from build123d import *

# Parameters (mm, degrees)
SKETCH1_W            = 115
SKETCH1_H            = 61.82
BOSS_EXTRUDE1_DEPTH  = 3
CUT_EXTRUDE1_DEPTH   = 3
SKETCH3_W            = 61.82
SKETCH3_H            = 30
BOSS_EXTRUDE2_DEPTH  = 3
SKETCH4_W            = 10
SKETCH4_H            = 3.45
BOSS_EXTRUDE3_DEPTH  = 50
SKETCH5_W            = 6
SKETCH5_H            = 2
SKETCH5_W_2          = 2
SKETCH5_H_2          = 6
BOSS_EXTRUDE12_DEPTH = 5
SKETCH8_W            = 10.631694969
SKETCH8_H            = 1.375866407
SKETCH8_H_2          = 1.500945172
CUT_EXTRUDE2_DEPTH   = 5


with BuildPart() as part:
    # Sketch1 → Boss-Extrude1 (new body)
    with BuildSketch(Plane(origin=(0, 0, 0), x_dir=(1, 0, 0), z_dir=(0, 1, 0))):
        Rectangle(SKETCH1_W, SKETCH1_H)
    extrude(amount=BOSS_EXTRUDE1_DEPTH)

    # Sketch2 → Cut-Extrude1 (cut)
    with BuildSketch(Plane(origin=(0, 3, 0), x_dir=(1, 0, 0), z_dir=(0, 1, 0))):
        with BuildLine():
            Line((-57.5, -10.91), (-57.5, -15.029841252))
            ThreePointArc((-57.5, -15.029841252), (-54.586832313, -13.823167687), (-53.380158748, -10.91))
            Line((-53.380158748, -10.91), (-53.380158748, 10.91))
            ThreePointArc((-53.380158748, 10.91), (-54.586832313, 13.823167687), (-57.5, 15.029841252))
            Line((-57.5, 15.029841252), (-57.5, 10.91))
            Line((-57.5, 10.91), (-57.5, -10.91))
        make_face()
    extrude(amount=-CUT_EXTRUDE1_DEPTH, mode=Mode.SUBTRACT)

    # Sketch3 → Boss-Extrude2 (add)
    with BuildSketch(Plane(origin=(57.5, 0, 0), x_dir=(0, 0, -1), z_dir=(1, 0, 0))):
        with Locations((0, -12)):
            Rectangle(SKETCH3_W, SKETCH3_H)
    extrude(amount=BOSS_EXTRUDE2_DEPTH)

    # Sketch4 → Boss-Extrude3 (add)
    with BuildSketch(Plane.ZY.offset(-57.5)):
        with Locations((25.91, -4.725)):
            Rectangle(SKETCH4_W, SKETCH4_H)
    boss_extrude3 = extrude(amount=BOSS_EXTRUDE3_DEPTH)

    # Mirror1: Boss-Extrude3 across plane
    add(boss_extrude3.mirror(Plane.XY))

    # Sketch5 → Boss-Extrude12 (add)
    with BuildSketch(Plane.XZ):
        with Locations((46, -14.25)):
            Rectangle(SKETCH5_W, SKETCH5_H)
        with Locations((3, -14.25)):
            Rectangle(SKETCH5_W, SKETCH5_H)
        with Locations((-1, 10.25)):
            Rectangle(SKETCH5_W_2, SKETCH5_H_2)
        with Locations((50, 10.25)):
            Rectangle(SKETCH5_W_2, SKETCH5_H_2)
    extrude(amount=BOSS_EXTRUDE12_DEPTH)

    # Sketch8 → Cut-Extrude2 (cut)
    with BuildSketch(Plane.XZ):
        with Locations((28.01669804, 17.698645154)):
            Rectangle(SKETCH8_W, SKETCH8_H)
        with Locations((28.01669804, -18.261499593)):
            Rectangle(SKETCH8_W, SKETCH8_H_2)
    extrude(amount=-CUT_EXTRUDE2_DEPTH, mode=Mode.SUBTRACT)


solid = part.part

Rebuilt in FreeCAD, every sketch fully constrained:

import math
import FreeCAD as App
import Part
import Sketcher

V = App.Vector
Q = App.Units.Quantity

doc = App.newDocument("Part")
body = doc.addObject("PartDesign::Body", "Body")

sketch1 = body.newObject("Sketcher::SketchObject", "Sketch")
sketch1.AttachmentSupport = (doc.getObject("XZ_Plane"), [""])
sketch1.MapMode = "FlatFace"
sketch1.addGeometry([
    Part.LineSegment(V(-57.5, -30.91, 0), V(-57.5, 30.91, 0)),
    Part.LineSegment(V(-57.5, 30.91, 0), V(57.5, 30.91, 0)),
    Part.LineSegment(V(57.5, 30.91, 0), V(57.5, -30.91, 0)),
    Part.LineSegment(V(57.5, -30.91, 0), V(-57.5, -30.91, 0)),
], False)
sketch1.addConstraint([
    Sketcher.Constraint("Coincident", 0, 2, 1, 1),
    Sketcher.Constraint("Coincident", 1, 2, 2, 1),
    Sketcher.Constraint("Coincident", 2, 2, 3, 1),
    Sketcher.Constraint("Coincident", 3, 2, 0, 1),
    Sketcher.Constraint("Vertical", 0),
    Sketcher.Constraint("Horizontal", 1),
    Sketcher.Constraint("Vertical", 2),
    Sketcher.Constraint("Horizontal", 3),
    Sketcher.Constraint("Symmetric", 0, 2, 2, 2, -1, 1),
    Sketcher.Constraint("DistanceX", 1, 1, 1, 2, Q("115 mm")),
    Sketcher.Constraint("DistanceY", 0, 1, 0, 2, Q("61.82 mm")),
])
pad1 = body.newObject("PartDesign::Pad", "Pad")
pad1.Profile = sketch1
pad1.Length = 3
pad1.Reversed = True

sketch2 = body.newObject("Sketcher::SketchObject", "Sketch001")
sketch2.AttachmentSupport = (doc.getObject("XZ_Plane"), [""])
sketch2.MapMode = "FlatFace"
sketch2.AttachmentOffset = App.Placement(V(0, 0, -3), App.Rotation())
sketch2.addGeometry([
    Part.ArcOfCircle(Part.Circle(V(-57.5, 10.91, 0), V(0, 0, 1), 4.119841), math.radians(0), math.radians(90)),
    Part.LineSegment(V(-53.380159, 10.91, 0), V(-53.380159, -10.91, 0)),
    Part.ArcOfCircle(Part.Circle(V(-57.5, -10.91, 0), V(0, 0, 1), 4.119841), math.radians(-90), math.radians(0)),
    Part.LineSegment(V(-57.5, -15.029841, 0), V(-57.5, 15.029841, 0)),
], False)
sketch2.addConstraint([
    Sketcher.Constraint("Tangent", 0, 1, 1, 1),
    Sketcher.Constraint("Tangent", 1, 2, 2, 2),
    Sketcher.Constraint("Coincident", 2, 1, 3, 1),
    Sketcher.Constraint("Coincident", 3, 2, 0, 2),
    Sketcher.Constraint("Vertical", 1),
    Sketcher.Constraint("Vertical", 3),
    Sketcher.Constraint("Equal", 0, 2),
    Sketcher.Constraint("Vertical", 0, 3, 2, 1),
    Sketcher.Constraint("DistanceY", 1, 2, 1, 1, Q("21.82 mm")),
    Sketcher.Constraint("DistanceX", 0, 3, -1, 1, Q("57.5 mm")),
    Sketcher.Constraint("DistanceY", -1, 1, 0, 3, Q("10.91 mm")),
    Sketcher.Constraint("Radius", 0, Q("4.119841 mm")),
])
pocket1 = body.newObject("PartDesign::Pocket", "Pocket")
pocket1.Profile = sketch2
pocket1.Length = 3
pocket1.Reversed = True

sketch3 = body.newObject("Sketcher::SketchObject", "Sketch002")
sketch3.AttachmentSupport = (doc.getObject("YZ_Plane"), [""])
sketch3.MapMode = "FlatFace"
sketch3.AttachmentOffset = App.Placement(V(0, 0, 57.5), App.Rotation())
sketch3.addGeometry([
    Part.LineSegment(V(3, 30.91, 0), V(-27, 30.91, 0)),
    Part.LineSegment(V(-27, 30.91, 0), V(-27, -30.91, 0)),
    Part.LineSegment(V(-27, -30.91, 0), V(3, -30.91, 0)),
    Part.LineSegment(V(3, -30.91, 0), V(3, 30.91, 0)),
], False)
sketch3.addConstraint([
    Sketcher.Constraint("Coincident", 0, 2, 1, 1),
    Sketcher.Constraint("Coincident", 1, 2, 2, 1),
    Sketcher.Constraint("Coincident", 2, 2, 3, 1),
    Sketcher.Constraint("Coincident", 3, 2, 0, 1),
    Sketcher.Constraint("Horizontal", 0),
    Sketcher.Constraint("Vertical", 1),
    Sketcher.Constraint("Horizontal", 2),
    Sketcher.Constraint("Vertical", 3),
    Sketcher.Constraint("DistanceX", 0, 2, 0, 1, Q("30 mm")),
    Sketcher.Constraint("DistanceX", 0, 2, -1, 1, Q("27 mm")),
    Sketcher.Constraint("DistanceY", 1, 2, 1, 1, Q("61.82 mm")),
    Sketcher.Constraint("DistanceY", -1, 1, 0, 2, Q("30.91 mm")),
])
pad2 = body.newObject("PartDesign::Pad", "Pad001")
pad2.Profile = sketch3
pad2.Length = 3

sketch4 = body.newObject("Sketcher::SketchObject", "Sketch003")
sketch4.AttachmentSupport = (doc.getObject("YZ_Plane"), [""])
sketch4.MapMode = "FlatFace"
sketch4.AttachmentOffset = App.Placement(V(0, 0, 57.5), App.Rotation())
sketch4.addGeometry([
    Part.LineSegment(V(-3, 20.91, 0), V(-6.45, 20.91, 0)),
    Part.LineSegment(V(-6.45, 20.91, 0), V(-6.45, 30.91, 0)),
    Part.LineSegment(V(-6.45, 30.91, 0), V(-3, 30.91, 0)),
    Part.LineSegment(V(-3, 30.91, 0), V(-3, 20.91, 0)),
], False)
sketch4.addConstraint([
    Sketcher.Constraint("Coincident", 0, 2, 1, 1),
    Sketcher.Constraint("Coincident", 1, 2, 2, 1),
    Sketcher.Constraint("Coincident", 2, 2, 3, 1),
    Sketcher.Constraint("Coincident", 3, 2, 0, 1),
    Sketcher.Constraint("Horizontal", 0),
    Sketcher.Constraint("Vertical", 1),
    Sketcher.Constraint("Horizontal", 2),
    Sketcher.Constraint("Vertical", 3),
    Sketcher.Constraint("DistanceY", 1, 1, 1, 2, Q("10 mm")),
    Sketcher.Constraint("DistanceX", 2, 2, -1, 1, Q("3 mm")),
    Sketcher.Constraint("DistanceX", 0, 2, 0, 1, Q("3.45 mm")),
    Sketcher.Constraint("DistanceY", -1, 1, 0, 2, Q("20.91 mm")),
])
pad3 = body.newObject("PartDesign::Pad", "Pad002")
pad3.Profile = sketch4
pad3.Length = 50
pad3.Reversed = True
doc.recompute()

mirrored = body.newObject("PartDesign::Mirrored", "Mirrored")
mirrored.Originals = [pad3]
mirrored.MirrorPlane = (doc.getObject("XY_Plane"), [""])
body.Tip = mirrored

sketch5 = body.newObject("Sketcher::SketchObject", "Sketch004")
sketch5.AttachmentSupport = (doc.getObject("XZ_Plane"), [""])
sketch5.MapMode = "FlatFace"
sketch5.addGeometry([
    Part.LineSegment(V(43, -13.25, 0), V(43, -15.25, 0)),
    Part.LineSegment(V(43, -15.25, 0), V(49, -15.25, 0)),
    Part.LineSegment(V(49, -15.25, 0), V(49, -13.25, 0)),
    Part.LineSegment(V(49, -13.25, 0), V(43, -13.25, 0)),
    Part.LineSegment(V(0, -13.25, 0), V(0, -15.25, 0)),
    Part.LineSegment(V(0, -15.25, 0), V(6, -15.25, 0)),
    Part.LineSegment(V(6, -15.25, 0), V(6, -13.25, 0)),
    Part.LineSegment(V(6, -13.25, 0), V(0, -13.25, 0)),
    Part.LineSegment(V(-2, 13.25, 0), V(-2, 7.25, 0)),
    Part.LineSegment(V(-2, 7.25, 0), V(0, 7.25, 0)),
    Part.LineSegment(V(0, 7.25, 0), V(0, 13.25, 0)),
    Part.LineSegment(V(0, 13.25, 0), V(-2, 13.25, 0)),
    Part.LineSegment(V(49, 13.25, 0), V(49, 7.25, 0)),
    Part.LineSegment(V(49, 7.25, 0), V(51, 7.25, 0)),
    Part.LineSegment(V(51, 7.25, 0), V(51, 13.25, 0)),
    Part.LineSegment(V(51, 13.25, 0), V(49, 13.25, 0)),
], False)
sketch5.addConstraint([
    Sketcher.Constraint("Coincident", 0, 2, 1, 1),
    Sketcher.Constraint("Coincident", 1, 2, 2, 1),
    Sketcher.Constraint("Coincident", 2, 2, 3, 1),
    Sketcher.Constraint("Coincident", 3, 2, 0, 1),
    Sketcher.Constraint("Coincident", 4, 2, 5, 1),
    Sketcher.Constraint("Coincident", 5, 2, 6, 1),
    Sketcher.Constraint("Coincident", 6, 2, 7, 1),
    Sketcher.Constraint("Coincident", 7, 2, 4, 1),
    Sketcher.Constraint("Coincident", 8, 2, 9, 1),
    Sketcher.Constraint("Coincident", 9, 2, 10, 1),
    Sketcher.Constraint("Coincident", 10, 2, 11, 1),
    Sketcher.Constraint("Coincident", 11, 2, 8, 1),
    Sketcher.Constraint("Coincident", 12, 2, 13, 1),
    Sketcher.Constraint("Coincident", 13, 2, 14, 1),
    Sketcher.Constraint("Coincident", 14, 2, 15, 1),
    Sketcher.Constraint("Coincident", 15, 2, 12, 1),
    Sketcher.Constraint("Vertical", 0),
    Sketcher.Constraint("Horizontal", 1),
    Sketcher.Constraint("Vertical", 2),
    Sketcher.Constraint("Horizontal", 3),
    Sketcher.Constraint("Vertical", 4),
    Sketcher.Constraint("Horizontal", 5),
    Sketcher.Constraint("Vertical", 6),
    Sketcher.Constraint("Horizontal", 7),
    Sketcher.Constraint("Vertical", 8),
    Sketcher.Constraint("Horizontal", 9),
    Sketcher.Constraint("Vertical", 10),
    Sketcher.Constraint("Horizontal", 11),
    Sketcher.Constraint("Vertical", 12),
    Sketcher.Constraint("Horizontal", 13),
    Sketcher.Constraint("Vertical", 14),
    Sketcher.Constraint("Horizontal", 15),
    Sketcher.Constraint("Symmetric", 7, 2, 10, 2, -1, 1),
    Sketcher.Constraint("Symmetric", 2, 2, 15, 2, -1),
    Sketcher.Constraint("PointOnObject", 4, 2, -2),
    Sketcher.Constraint("Horizontal", 1, 2, 4, 2),
    Sketcher.Constraint("Horizontal", 3, 2, 6, 2),
    Sketcher.Constraint("Horizontal", 9, 2, 12, 2),
    Sketcher.Constraint("Equal", 3, 5),
    Sketcher.Constraint("Equal", 11, 13),
    Sketcher.Constraint("Equal", 15, 0),
    Sketcher.Constraint("Equal", 7, 8),
    Sketcher.Constraint("DistanceX", 1, 1, 1, 2, Q("6 mm")),
    Sketcher.Constraint("DistanceX", 9, 1, 9, 2, Q("2 mm")),
    Sketcher.Constraint("DistanceX", -1, 1, 0, 2, Q("43 mm")),
    Sketcher.Constraint("DistanceY", 7, 2, 8, 2, Q("20.5 mm")),
])
pad4 = body.newObject("PartDesign::Pad", "Pad003")
pad4.Profile = sketch5
pad4.Length = 5

sketch6 = body.newObject("Sketcher::SketchObject", "Sketch005")
sketch6.AttachmentSupport = (doc.getObject("XZ_Plane"), [""])
sketch6.MapMode = "FlatFace"
sketch6.addGeometry([
    Part.LineSegment(V(22.700851, 18.386578, 0), V(22.700851, 17.010712, 0)),
    Part.LineSegment(V(22.700851, 17.010712, 0), V(33.332546, 17.010712, 0)),
    Part.LineSegment(V(33.332546, 17.010712, 0), V(33.332546, 18.386578, 0)),
    Part.LineSegment(V(33.332546, 18.386578, 0), V(22.700851, 18.386578, 0)),
    Part.LineSegment(V(22.700851, -17.511027, 0), V(22.700851, -19.011972, 0)),
    Part.LineSegment(V(22.700851, -19.011972, 0), V(33.332546, -19.011972, 0)),
    Part.LineSegment(V(33.332546, -19.011972, 0), V(33.332546, -17.511027, 0)),
    Part.LineSegment(V(33.332546, -17.511027, 0), V(22.700851, -17.511027, 0)),
], False)
sketch6.addConstraint([
    Sketcher.Constraint("Coincident", 0, 2, 1, 1),
    Sketcher.Constraint("Coincident", 1, 2, 2, 1),
    Sketcher.Constraint("Coincident", 2, 2, 3, 1),
    Sketcher.Constraint("Coincident", 3, 2, 0, 1),
    Sketcher.Constraint("Coincident", 4, 2, 5, 1),
    Sketcher.Constraint("Coincident", 5, 2, 6, 1),
    Sketcher.Constraint("Coincident", 6, 2, 7, 1),
    Sketcher.Constraint("Coincident", 7, 2, 4, 1),
    Sketcher.Constraint("Vertical", 0),
    Sketcher.Constraint("Horizontal", 1),
    Sketcher.Constraint("Vertical", 2),
    Sketcher.Constraint("Horizontal", 3),
    Sketcher.Constraint("Vertical", 4),
    Sketcher.Constraint("Horizontal", 5),
    Sketcher.Constraint("Vertical", 6),
    Sketcher.Constraint("Horizontal", 7),
    Sketcher.Constraint("Vertical", 3, 2, 4, 2),
    Sketcher.Constraint("Vertical", 2, 2, 5, 2),
    Sketcher.Constraint("DistanceX", 1, 1, 1, 2, Q("10.631695 mm")),
    Sketcher.Constraint("DistanceY", 0, 2, 0, 1, Q("1.375866 mm")),
    Sketcher.Constraint("DistanceY", 4, 2, 4, 1, Q("1.500945 mm")),
    Sketcher.Constraint("DistanceX", -1, 1, 0, 2, Q("22.700851 mm")),
    Sketcher.Constraint("DistanceY", -1, 1, 0, 2, Q("17.010712 mm")),
    Sketcher.Constraint("DistanceY", 4, 2, 3, 2, Q("37.398551 mm")),
])
pocket2 = body.newObject("PartDesign::Pocket", "Pocket001")
pocket2.Profile = sketch6
pocket2.Length = 5

doc.recompute()
